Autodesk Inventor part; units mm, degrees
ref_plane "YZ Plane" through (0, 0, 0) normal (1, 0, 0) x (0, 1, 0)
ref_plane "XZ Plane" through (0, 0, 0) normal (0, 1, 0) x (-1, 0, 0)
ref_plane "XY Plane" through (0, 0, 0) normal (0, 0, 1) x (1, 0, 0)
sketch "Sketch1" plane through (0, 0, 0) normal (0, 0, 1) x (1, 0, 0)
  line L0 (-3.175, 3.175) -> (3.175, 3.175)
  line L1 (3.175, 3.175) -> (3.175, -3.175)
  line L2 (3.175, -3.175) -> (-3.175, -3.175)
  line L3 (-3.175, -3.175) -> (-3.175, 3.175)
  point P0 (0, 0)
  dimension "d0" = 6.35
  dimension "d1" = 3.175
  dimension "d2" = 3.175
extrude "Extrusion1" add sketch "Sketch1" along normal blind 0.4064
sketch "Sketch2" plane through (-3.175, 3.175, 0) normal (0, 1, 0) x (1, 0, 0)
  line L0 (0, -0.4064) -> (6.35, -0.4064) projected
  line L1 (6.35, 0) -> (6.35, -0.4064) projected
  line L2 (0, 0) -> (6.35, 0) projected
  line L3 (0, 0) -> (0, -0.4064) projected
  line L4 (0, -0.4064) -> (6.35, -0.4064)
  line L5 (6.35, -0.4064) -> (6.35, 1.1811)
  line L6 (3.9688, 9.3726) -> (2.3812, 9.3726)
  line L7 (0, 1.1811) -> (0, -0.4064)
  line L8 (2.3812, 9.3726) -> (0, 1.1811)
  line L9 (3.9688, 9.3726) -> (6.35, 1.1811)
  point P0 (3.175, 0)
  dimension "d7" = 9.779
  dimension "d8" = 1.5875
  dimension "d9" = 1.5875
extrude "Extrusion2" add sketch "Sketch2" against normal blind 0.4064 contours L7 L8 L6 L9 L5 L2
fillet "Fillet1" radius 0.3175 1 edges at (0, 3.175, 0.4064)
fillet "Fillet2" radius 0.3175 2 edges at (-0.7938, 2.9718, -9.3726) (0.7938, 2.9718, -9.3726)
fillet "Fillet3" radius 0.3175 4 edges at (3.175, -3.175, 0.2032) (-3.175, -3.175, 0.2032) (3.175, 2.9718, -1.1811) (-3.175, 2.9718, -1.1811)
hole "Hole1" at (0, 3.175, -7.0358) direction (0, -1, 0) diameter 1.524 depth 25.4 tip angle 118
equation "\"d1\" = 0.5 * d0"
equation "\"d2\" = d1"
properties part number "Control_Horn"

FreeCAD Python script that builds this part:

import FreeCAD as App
import Part
import Sketcher
from FreeCAD import Vector
Q = App.Units.Quantity


def edges_at(feature, points):
    """Names of the edges that pass closest to the given points."""
    edges = feature.Shape.Edges
    near = lambda p: min(range(len(edges)), key=lambda i: edges[i].distToShape(Part.Vertex(*p))[0])
    return sorted({f"Edge{near(p) + 1}" for p in points})

doc = App.newDocument("Part")
body = doc.addObject("PartDesign::Body", "Body")

# Sketch on XY plane
sketch1 = doc.addObject("Sketcher::SketchObject", "Sketch")
body.addObject(sketch1)
sketch1.AttachmentSupport = (doc.XY_Plane, [""])
sketch1.MapMode = "FlatFace"
sketch1.addGeometry([
    Part.LineSegment(Vector(3, 3, 0), Vector(-3, 3, 0)),
    Part.LineSegment(Vector(-3, 3, 0), Vector(-3, -3, 0)),
    Part.LineSegment(Vector(-3, -3, 0), Vector(3, -3, 0)),
    Part.LineSegment(Vector(3, -3, 0), Vector(3, 3, 0)),
], False)
sketch1.addConstraint([
    Sketcher.Constraint("Coincident", 0, 2, 1, 1),
    Sketcher.Constraint("Coincident", 1, 2, 2, 1),
    Sketcher.Constraint("Coincident", 2, 2, 3, 1),
    Sketcher.Constraint("Coincident", 3, 2, 0, 1),
    Sketcher.Constraint("Horizontal", 0),
    Sketcher.Constraint("Vertical", 1),
    Sketcher.Constraint("Horizontal", 2),
    Sketcher.Constraint("Vertical", 3),
    Sketcher.Constraint("Symmetric", 0, 2, 2, 2, -1, 1),
    Sketcher.Constraint("Equal", 2, 1),
    Sketcher.Constraint("DistanceX", 0, 2, 0, 1, Q("0.25 in")),
])
pad1 = doc.addObject("PartDesign::Pad", "Pad")
body.addObject(pad1)
pad1.Profile = sketch1
pad1.Length = Q("0.016 in")

# Sketch on XZ plane
sketch2 = doc.addObject("Sketcher::SketchObject", "Sketch001")
body.addObject(sketch2)
sketch2.AttachmentSupport = (doc.XZ_Plane, [""])
sketch2.MapMode = "FlatFace"
sketch2.AttachmentOffset = App.Placement(Vector(0, 0, -0.125 * 25.4), App.Rotation())
sketch2.addGeometry([
    Part.LineSegment(Vector(-3.2, -1.2, 0), Vector(-3.2, 0, 0)),  # 0
    Part.LineSegment(Vector(-3.2, 0, 0), Vector(3.2, 0, 0)),  # 1
    Part.LineSegment(Vector(3.2, 0, 0), Vector(3.2, -1.2, 0)),  # 2
    Part.LineSegment(Vector(3.2, -1.2, 0), Vector(0.8, -9.4, 0)),  # 3
    Part.LineSegment(Vector(0.8, -9.4, 0), Vector(-0.8, -9.4, 0)),  # 4
    Part.LineSegment(Vector(-0.8, -9.4, 0), Vector(-3.2, -1.2, 0)),  # 5
], False)
sketch2.addConstraint([
    Sketcher.Constraint("Coincident", 0, 2, 1, 1),
    Sketcher.Constraint("Coincident", 1, 2, 2, 1),
    Sketcher.Constraint("Coincident", 2, 2, 3, 1),
    Sketcher.Constraint("Coincident", 3, 2, 4, 1),
    Sketcher.Constraint("Coincident", 4, 2, 5, 1),
    Sketcher.Constraint("Coincident", 5, 2, 0, 1),
    Sketcher.Constraint("Vertical", 0),
    Sketcher.Constraint("Horizontal", 1),
    Sketcher.Constraint("Vertical", 2),
    Sketcher.Constraint("Horizontal", 4),
    Sketcher.Constraint("Symmetric", 0, 2, 1, 2, -1, 1),
    Sketcher.Constraint("Horizontal", 2, 2, 5, 2),
    Sketcher.Constraint("Equal", 3, 5),
    Sketcher.Constraint("DistanceX", 4, 2, 4, 1, Q("0.0625 in")),
    Sketcher.Constraint("DistanceX", 1, 1, 1, 2, Q("0.25 in")),
    Sketcher.Constraint("DistanceY", 0, 1, 0, 2, Q("0.0465 in")),
    Sketcher.Constraint("DistanceY", 3, 2, -1, 1, Q("0.369 in")),
])
pad2 = doc.addObject("PartDesign::Pad", "Pad001")
body.addObject(pad2)
pad2.Profile = sketch2
pad2.Length = Q("0.016 in")
doc.recompute()

fillet = doc.addObject("PartDesign::Fillet", "Fillet")
body.addObject(fillet)
fillet.Base = (pad2, edges_at(pad2, [(0, 3.175, 0.406)]))
fillet.Radius = Q("0.0125 in")
doc.recompute()

fillet2 = doc.addObject("PartDesign::Fillet", "Fillet001")
body.addObject(fillet2)
fillet2.Base = (fillet, edges_at(fillet, [(-0.794, 2.972, -9.373), (0.794, 2.972, -9.373)]))
fillet2.Radius = Q("0.0125 in")
doc.recompute()

fillet3 = doc.addObject("PartDesign::Fillet", "Fillet002")
body.addObject(fillet3)
fillet3.Base = (fillet2, edges_at(fillet2, [
    (3.175, -3.175, 0.203),
    (-3.175, -3.175, 0.203),
    (3.175, 2.972, -1.181),
    (-3.175, 2.972, -1.181),
]))
fillet3.Radius = Q("0.0125 in")

# Sketch on XZ plane
sketch3 = doc.addObject("Sketcher::SketchObject", "Sketch002")
body.addObject(sketch3)
sketch3.AttachmentSupport = (doc.XZ_Plane, [""])
sketch3.MapMode = "FlatFace"
sketch3.AttachmentOffset = App.Placement(Vector(0, 0, -0.125 * 25.4), App.Rotation())
sketch3.addGeometry(Part.Circle(Vector(0, -7, 0), Vector(0, 0, 1), 0.8), False)
sketch3.addConstraint([
    Sketcher.Constraint("PointOnObject", 0, 3, -2),
    Sketcher.Constraint("Diameter", 0, Q("0.06 in")),
    Sketcher.Constraint("DistanceY", 0, 3, -1, 1, Q("0.277 in")),
])
doc.recompute()
hole = doc.addObject("PartDesign::Hole", "Hole")
body.addObject(hole)
hole.Profile = sketch3
hole.ThreadType = "None"
hole.Diameter = Q("0.06 in")
hole.DepthType = "Dimension"
hole.Depth = Q("1 in")
hole.DrillPoint = "Angled"
hole.DrillPointAngle = 118
hole.Reversed = True

doc.recompute()
